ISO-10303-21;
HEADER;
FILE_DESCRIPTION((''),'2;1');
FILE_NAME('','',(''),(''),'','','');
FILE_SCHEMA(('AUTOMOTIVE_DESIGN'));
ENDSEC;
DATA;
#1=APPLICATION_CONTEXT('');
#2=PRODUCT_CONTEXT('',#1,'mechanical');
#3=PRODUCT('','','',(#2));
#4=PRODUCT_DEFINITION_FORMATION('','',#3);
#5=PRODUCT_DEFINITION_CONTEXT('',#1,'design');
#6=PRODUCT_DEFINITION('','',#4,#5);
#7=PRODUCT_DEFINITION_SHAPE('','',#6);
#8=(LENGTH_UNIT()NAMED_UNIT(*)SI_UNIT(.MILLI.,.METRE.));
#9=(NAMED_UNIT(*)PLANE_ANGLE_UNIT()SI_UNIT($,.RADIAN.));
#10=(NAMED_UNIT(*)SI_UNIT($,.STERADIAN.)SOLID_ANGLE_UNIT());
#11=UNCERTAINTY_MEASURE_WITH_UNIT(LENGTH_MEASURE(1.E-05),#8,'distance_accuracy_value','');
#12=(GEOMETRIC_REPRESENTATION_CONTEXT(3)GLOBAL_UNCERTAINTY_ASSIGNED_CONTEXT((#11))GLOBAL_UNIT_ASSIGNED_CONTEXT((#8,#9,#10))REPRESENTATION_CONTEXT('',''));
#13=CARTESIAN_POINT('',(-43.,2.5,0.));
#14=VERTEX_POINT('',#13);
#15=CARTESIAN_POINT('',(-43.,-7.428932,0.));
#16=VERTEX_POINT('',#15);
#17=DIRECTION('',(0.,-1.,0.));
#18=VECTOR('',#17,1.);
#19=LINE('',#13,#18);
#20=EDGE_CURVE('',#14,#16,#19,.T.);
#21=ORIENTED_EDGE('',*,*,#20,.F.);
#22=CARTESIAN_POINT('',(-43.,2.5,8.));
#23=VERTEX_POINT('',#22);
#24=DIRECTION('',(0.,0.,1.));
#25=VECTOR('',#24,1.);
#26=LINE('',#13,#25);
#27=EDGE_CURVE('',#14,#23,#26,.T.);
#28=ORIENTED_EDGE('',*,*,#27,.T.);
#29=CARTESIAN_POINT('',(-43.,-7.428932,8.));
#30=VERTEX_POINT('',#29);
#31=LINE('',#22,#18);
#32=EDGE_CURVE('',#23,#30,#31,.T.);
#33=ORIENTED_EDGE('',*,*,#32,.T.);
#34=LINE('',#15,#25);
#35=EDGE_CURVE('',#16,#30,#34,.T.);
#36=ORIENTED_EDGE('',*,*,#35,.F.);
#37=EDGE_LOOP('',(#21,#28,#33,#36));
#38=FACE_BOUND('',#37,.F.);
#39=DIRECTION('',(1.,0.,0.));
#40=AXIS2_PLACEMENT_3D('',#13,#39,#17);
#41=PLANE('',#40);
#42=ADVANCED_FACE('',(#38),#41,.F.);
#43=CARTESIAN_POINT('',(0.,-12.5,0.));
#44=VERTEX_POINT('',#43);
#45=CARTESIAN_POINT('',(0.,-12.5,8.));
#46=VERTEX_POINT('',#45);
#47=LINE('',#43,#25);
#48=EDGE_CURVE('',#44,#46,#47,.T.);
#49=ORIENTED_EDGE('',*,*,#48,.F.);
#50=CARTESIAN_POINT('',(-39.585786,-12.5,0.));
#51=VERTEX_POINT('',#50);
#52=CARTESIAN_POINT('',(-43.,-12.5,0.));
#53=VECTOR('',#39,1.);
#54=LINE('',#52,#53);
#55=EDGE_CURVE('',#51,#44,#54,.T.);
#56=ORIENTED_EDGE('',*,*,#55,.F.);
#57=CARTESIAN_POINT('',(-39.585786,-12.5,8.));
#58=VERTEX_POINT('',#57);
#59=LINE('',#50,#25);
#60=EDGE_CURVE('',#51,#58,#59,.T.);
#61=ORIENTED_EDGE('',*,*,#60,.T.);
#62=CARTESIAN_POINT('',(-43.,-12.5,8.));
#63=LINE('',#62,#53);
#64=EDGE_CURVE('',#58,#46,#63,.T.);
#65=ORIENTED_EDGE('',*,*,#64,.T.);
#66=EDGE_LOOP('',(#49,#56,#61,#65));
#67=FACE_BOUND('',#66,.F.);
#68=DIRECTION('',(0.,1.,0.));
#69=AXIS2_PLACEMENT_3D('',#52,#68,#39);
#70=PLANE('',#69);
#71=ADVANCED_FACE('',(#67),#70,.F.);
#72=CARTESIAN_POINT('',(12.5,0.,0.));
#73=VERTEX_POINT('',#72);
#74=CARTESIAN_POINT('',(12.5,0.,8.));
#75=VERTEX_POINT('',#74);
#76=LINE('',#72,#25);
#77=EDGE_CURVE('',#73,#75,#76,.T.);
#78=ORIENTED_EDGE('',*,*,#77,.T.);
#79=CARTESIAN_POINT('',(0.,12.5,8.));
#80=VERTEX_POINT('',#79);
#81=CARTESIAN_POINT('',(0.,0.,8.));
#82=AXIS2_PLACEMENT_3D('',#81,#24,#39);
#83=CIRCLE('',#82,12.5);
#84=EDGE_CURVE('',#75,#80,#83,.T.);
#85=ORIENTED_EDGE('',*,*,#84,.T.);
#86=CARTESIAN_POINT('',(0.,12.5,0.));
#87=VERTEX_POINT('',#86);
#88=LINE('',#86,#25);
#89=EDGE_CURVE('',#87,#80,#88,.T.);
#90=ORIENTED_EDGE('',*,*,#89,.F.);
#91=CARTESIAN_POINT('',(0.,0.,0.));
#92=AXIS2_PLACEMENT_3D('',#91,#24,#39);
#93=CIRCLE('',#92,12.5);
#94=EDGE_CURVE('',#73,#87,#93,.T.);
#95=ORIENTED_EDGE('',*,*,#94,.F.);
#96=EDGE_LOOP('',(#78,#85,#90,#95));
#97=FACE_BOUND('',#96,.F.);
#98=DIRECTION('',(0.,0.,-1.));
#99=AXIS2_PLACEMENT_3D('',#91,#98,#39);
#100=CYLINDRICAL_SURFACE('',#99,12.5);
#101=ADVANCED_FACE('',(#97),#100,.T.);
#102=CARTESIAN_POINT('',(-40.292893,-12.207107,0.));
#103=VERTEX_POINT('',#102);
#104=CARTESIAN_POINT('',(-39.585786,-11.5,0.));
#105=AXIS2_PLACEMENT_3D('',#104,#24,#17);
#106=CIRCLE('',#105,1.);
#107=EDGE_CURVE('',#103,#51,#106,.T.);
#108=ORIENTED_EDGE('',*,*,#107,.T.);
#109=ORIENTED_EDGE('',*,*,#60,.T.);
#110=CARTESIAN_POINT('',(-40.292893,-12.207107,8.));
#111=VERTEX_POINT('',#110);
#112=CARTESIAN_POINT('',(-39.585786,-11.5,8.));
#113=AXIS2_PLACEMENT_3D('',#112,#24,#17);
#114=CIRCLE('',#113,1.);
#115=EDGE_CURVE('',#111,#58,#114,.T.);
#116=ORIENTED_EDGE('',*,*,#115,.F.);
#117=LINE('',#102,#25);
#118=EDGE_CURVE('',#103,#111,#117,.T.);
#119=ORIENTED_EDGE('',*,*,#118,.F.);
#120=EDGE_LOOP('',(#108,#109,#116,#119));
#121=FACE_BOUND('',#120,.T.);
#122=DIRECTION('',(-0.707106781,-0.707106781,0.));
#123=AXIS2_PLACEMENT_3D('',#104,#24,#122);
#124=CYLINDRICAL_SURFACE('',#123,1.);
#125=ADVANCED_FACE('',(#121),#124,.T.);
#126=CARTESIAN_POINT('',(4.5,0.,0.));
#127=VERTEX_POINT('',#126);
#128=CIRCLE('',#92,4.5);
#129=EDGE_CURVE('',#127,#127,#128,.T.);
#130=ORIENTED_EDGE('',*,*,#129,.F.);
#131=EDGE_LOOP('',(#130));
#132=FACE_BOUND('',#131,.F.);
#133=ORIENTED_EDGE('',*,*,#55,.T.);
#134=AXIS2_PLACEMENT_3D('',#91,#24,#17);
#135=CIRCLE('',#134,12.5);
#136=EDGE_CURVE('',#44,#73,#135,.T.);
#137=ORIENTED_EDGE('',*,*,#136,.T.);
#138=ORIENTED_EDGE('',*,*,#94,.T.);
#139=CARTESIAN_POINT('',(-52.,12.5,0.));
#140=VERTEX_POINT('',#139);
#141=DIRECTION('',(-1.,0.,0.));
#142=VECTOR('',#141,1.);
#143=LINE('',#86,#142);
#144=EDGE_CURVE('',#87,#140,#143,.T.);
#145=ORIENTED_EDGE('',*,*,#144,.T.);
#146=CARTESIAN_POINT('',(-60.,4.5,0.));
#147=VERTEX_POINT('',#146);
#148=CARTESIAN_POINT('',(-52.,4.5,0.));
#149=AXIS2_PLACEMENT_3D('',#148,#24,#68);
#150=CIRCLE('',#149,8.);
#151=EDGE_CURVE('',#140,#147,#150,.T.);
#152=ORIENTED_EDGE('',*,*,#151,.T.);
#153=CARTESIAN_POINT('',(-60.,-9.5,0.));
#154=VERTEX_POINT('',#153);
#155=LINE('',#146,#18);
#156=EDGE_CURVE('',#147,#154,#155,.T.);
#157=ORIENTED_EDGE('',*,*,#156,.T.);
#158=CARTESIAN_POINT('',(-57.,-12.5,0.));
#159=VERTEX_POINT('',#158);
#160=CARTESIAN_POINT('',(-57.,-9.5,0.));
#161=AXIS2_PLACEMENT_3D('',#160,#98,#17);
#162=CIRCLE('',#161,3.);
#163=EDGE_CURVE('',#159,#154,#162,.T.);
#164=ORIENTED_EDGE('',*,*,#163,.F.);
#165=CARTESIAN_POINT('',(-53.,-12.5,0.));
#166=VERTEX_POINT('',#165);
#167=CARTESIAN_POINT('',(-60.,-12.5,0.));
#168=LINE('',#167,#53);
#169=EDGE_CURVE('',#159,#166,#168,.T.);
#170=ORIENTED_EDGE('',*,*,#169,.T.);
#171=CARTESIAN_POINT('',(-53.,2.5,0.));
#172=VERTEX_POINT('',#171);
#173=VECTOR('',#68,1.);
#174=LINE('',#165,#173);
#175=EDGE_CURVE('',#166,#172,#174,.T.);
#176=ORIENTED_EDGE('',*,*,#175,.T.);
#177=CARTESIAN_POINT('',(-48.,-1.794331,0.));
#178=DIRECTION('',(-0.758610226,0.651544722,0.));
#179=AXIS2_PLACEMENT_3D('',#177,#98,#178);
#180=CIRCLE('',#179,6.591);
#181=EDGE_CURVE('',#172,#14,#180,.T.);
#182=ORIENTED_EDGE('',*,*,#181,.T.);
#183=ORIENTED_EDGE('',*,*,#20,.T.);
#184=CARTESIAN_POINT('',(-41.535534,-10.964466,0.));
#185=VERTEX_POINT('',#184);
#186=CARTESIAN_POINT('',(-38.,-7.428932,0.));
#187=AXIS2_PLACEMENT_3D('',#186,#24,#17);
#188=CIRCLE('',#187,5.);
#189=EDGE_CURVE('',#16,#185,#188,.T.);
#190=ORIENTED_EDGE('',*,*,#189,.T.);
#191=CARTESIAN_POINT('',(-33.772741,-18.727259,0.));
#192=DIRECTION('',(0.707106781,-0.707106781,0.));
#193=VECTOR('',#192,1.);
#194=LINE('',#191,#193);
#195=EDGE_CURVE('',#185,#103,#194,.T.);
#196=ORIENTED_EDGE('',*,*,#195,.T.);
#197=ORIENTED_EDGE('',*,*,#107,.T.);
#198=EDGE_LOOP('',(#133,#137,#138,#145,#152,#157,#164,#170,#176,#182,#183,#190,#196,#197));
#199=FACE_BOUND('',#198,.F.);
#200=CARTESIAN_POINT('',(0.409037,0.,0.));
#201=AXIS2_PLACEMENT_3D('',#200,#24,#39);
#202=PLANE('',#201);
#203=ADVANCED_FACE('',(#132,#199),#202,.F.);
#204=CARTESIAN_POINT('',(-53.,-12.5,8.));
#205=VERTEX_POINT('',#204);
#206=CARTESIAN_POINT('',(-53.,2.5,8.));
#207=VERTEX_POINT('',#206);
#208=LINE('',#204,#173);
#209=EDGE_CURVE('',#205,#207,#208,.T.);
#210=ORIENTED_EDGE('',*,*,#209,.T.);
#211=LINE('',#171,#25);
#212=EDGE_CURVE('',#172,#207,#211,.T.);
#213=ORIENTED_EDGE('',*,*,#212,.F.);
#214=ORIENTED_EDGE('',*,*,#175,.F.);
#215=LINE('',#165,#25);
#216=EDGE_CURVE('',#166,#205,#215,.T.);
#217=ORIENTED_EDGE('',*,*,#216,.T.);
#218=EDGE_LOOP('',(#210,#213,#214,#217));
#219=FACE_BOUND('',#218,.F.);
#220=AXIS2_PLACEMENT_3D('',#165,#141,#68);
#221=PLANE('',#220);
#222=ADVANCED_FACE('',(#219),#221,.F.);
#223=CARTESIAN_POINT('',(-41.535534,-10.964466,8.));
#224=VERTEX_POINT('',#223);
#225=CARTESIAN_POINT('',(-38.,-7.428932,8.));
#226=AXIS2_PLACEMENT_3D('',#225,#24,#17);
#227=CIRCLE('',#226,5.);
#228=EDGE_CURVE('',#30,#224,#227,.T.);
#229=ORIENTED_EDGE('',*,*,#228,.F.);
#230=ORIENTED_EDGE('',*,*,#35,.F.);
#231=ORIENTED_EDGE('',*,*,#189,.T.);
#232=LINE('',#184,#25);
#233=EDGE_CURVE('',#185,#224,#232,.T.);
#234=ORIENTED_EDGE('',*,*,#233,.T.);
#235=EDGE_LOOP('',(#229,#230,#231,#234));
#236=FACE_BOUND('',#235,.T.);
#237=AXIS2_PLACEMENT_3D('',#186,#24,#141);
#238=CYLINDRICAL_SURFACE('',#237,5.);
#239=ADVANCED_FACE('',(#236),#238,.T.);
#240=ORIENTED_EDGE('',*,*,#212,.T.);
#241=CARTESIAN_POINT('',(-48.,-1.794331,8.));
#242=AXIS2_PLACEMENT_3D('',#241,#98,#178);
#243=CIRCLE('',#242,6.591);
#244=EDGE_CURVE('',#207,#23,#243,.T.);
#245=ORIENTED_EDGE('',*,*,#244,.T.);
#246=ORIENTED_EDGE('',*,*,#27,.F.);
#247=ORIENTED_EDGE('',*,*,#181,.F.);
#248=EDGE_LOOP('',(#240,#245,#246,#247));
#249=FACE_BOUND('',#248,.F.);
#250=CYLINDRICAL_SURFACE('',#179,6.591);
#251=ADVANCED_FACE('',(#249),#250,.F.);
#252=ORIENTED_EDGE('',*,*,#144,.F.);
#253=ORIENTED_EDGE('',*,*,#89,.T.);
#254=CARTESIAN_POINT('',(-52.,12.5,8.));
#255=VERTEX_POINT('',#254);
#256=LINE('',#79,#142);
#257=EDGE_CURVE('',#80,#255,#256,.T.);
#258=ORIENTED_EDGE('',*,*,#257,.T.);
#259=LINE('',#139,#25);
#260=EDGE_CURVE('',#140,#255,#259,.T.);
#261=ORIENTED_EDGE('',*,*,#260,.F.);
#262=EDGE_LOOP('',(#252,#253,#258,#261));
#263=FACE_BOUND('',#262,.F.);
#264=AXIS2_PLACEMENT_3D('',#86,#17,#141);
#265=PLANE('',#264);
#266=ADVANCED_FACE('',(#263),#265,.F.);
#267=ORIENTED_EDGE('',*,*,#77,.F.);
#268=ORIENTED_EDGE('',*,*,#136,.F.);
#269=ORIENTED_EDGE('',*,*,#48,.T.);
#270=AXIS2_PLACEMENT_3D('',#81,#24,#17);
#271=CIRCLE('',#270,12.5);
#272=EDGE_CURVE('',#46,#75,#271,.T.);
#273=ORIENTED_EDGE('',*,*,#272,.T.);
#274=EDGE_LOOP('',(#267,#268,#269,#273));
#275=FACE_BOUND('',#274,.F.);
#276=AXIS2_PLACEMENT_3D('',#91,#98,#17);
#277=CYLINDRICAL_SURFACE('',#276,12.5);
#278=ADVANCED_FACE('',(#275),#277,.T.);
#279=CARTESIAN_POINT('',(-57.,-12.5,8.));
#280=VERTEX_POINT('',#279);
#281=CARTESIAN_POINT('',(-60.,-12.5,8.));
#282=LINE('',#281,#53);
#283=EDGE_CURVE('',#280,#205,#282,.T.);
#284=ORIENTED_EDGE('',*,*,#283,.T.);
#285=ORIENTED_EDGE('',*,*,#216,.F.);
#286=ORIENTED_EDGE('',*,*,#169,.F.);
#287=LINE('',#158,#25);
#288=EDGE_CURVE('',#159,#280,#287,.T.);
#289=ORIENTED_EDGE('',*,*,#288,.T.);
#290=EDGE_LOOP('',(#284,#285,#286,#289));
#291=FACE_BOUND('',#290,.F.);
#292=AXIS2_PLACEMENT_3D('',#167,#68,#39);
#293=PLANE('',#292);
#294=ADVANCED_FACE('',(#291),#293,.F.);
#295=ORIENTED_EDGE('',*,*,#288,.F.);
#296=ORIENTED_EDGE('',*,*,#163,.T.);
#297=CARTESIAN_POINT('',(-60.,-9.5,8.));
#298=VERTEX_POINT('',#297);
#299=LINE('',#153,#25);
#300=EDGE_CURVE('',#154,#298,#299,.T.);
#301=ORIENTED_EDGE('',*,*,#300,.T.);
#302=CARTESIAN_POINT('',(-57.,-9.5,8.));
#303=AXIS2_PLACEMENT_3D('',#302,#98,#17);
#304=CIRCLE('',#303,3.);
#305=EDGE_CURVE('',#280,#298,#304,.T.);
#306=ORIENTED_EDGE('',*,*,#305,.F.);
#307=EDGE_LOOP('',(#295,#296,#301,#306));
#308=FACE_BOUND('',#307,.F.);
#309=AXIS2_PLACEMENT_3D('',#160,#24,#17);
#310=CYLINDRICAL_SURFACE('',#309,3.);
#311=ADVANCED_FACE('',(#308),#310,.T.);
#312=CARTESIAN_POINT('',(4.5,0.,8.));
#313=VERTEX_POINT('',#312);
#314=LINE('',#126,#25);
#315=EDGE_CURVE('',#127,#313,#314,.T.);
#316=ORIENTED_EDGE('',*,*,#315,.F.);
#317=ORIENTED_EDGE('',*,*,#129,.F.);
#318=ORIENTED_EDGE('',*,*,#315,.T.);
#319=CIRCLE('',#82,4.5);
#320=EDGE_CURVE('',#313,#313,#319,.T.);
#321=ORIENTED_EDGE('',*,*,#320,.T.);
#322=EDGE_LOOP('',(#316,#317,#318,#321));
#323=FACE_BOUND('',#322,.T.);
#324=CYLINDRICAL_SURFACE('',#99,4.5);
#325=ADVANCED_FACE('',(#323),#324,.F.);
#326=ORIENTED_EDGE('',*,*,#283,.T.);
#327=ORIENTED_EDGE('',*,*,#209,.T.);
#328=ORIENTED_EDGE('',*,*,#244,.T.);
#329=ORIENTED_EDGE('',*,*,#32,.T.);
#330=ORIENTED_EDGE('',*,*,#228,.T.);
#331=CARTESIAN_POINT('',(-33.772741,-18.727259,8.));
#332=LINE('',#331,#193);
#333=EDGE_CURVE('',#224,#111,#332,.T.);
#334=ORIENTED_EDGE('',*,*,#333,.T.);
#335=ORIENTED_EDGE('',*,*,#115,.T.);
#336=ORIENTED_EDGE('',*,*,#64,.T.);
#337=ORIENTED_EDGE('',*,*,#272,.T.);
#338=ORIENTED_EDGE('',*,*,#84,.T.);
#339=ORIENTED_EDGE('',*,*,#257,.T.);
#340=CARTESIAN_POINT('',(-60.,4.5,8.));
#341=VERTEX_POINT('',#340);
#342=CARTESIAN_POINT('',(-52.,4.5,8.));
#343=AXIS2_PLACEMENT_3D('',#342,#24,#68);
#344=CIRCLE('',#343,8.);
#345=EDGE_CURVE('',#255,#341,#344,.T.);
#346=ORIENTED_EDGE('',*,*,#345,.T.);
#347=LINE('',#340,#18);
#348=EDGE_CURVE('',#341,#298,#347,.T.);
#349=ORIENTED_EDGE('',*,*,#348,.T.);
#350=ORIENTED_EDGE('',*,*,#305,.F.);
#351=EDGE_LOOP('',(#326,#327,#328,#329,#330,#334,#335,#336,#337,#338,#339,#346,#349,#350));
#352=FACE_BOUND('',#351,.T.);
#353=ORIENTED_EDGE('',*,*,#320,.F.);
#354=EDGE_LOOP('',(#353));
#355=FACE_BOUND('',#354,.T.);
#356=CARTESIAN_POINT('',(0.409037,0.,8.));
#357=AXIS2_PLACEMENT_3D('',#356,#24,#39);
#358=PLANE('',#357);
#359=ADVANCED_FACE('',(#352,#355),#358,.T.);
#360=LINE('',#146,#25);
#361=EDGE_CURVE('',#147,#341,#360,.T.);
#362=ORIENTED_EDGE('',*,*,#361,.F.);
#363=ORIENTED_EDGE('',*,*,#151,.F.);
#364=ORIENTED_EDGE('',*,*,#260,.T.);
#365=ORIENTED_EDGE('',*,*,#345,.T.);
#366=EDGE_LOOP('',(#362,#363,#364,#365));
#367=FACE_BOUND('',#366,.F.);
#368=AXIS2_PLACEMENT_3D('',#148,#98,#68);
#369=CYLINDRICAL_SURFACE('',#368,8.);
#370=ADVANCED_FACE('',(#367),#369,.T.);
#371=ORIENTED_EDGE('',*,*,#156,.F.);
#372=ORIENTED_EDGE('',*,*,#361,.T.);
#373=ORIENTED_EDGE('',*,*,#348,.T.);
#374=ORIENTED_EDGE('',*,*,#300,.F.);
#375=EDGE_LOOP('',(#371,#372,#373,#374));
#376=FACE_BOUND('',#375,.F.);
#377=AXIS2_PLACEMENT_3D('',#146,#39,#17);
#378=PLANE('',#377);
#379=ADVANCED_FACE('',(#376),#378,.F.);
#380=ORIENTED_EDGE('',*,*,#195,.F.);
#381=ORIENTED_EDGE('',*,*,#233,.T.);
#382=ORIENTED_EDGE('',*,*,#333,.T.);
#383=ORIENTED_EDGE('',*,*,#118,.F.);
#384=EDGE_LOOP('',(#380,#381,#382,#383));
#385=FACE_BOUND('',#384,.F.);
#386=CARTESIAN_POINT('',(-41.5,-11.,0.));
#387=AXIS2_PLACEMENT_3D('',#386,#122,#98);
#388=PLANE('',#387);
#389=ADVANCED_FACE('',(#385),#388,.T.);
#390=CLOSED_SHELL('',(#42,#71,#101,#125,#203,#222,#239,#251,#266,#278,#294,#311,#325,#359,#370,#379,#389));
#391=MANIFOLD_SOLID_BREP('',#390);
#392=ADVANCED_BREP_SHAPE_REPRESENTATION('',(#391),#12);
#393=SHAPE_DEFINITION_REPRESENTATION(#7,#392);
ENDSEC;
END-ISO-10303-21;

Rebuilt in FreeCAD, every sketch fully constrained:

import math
import FreeCAD as App
import Part
import Sketcher
from FreeCAD import Vector


def edges_at(feature, points):
    """Names of the edges that pass closest to the given points."""
    edges = feature.Shape.Edges
    near = lambda p: min(range(len(edges)), key=lambda i: edges[i].distToShape(Part.Vertex(*p))[0])
    return sorted({f"Edge{near(p) + 1}" for p in points})

doc = App.newDocument("Part")
body = doc.addObject("PartDesign::Body", "Body")

sketch1 = body.newObject("Sketcher::SketchObject", "Sketch")
sketch1.AttachmentSupport = (doc.getObject("XY_Plane"), [""])
sketch1.MapMode = "FlatFace"
sketch1.addGeometry([
    Part.ArcOfCircle(Part.Circle(Vector(0, 0, 0), Vector(0, 0, 1), 12.5), math.radians(-90), math.radians(0)),
    Part.ArcOfCircle(Part.Circle(Vector(0, 0, 0), Vector(0, 0, 1), 12.5), math.radians(0), math.radians(90)),
    Part.LineSegment(Vector(0, 12.5, 0), Vector(-52, 12.5, 0)),
    Part.ArcOfCircle(Part.Circle(Vector(-52, 4.5, 0), Vector(0, 0, 1), 8), math.radians(90), math.radians(180)),
    Part.LineSegment(Vector(-60, 4.5, 0), Vector(-60, -12.5, 0)),
    Part.LineSegment(Vector(-60, -12.5, 0), Vector(-53, -12.5, 0)),
    Part.LineSegment(Vector(-53, -12.5, 0), Vector(-53, 2.5, 0)),
    Part.ArcOfCircle(Part.Circle(Vector(-48, -1.8, 0), Vector(0, 0, 1), 6.6), math.radians(41), math.radians(139)),
    Part.LineSegment(Vector(-43, 2.5, 0), Vector(-43, -12.5, 0)),
    Part.LineSegment(Vector(-43, -12.5, 0), Vector(0, -12.5, 0)),
    Part.Circle(Vector(0, 0, 0), Vector(0, 0, 1), 4.5),
], False)
sketch1.addConstraint([
    Sketcher.Constraint("Tangent", 0, 2, 1, 1),
    Sketcher.Constraint("Tangent", 1, 2, 2, 1),
    Sketcher.Constraint("Tangent", 2, 2, 3, 1),
    Sketcher.Constraint("Tangent", 3, 2, 4, 1),
    Sketcher.Constraint("Coincident", 4, 2, 5, 1),
    Sketcher.Constraint("Coincident", 5, 2, 6, 1),
    Sketcher.Constraint("Coincident", 6, 2, 7, 2),
    Sketcher.Constraint("Coincident", 7, 1, 8, 1),
    Sketcher.Constraint("Coincident", 8, 2, 9, 1),
    Sketcher.Constraint("Tangent", 9, 2, 0, 1),
    Sketcher.Constraint("Horizontal", 2),
    Sketcher.Constraint("Vertical", 4),
    Sketcher.Constraint("Horizontal", 5),
    Sketcher.Constraint("Vertical", 6),
    Sketcher.Constraint("Vertical", 8),
    Sketcher.Constraint("Horizontal", 9),
    Sketcher.Constraint("Coincident", 0, 3, -1, 1),
    Sketcher.Constraint("Coincident", 10, 3, -1, 1),
    Sketcher.Constraint("Equal", 0, 1),
    Sketcher.Constraint("PointOnObject", 0, 2, -1),
    Sketcher.Constraint("Horizontal", 6, 2, 7, 1),
    Sketcher.Constraint("Horizontal", 5, 2, 8, 2),
    Sketcher.Constraint("Diameter", 10, 9.0),
    Sketcher.Constraint("Radius", 3, 8.0),
    Sketcher.Constraint("Radius", 0, 12.5),
    Sketcher.Constraint("DistanceX", 2, 2, 2, 1, 52.0),
    Sketcher.Constraint("DistanceX", 5, 1, 5, 2, 7.0),
    Sketcher.Constraint("DistanceX", 9, 1, 9, 2, 43.0),
    Sketcher.Constraint("DistanceY", 6, 1, 6, 2, 15.0),
    Sketcher.Constraint("Radius", 7, 6.591),
])
pad1 = body.newObject("PartDesign::Pad", "Pad")
pad1.Profile = sketch1
pad1.Length = 8
doc.recompute()

chamfer = body.newObject("PartDesign::Chamfer", "Chamfer")
chamfer.Base = (pad1, edges_at(pad1, [(-43, -12.5, 4)]))
chamfer.Size = 3
doc.recompute()

fillet = body.newObject("PartDesign::Fillet", "Fillet")
fillet.Base = (chamfer, edges_at(chamfer, [(-43, -9.5, 4)]))
fillet.Radius = 5
doc.recompute()

fillet2 = body.newObject("PartDesign::Fillet", "Fillet001")
fillet2.Base = (fillet, edges_at(fillet, [(-40, -12.5, 4)]))
fillet2.Radius = 1
doc.recompute()

fillet3 = body.newObject("PartDesign::Fillet", "Fillet002")
fillet3.Base = (fillet2, edges_at(fillet2, [(-60, -12.5, 4)]))
fillet3.Radius = 3

doc.recompute()
